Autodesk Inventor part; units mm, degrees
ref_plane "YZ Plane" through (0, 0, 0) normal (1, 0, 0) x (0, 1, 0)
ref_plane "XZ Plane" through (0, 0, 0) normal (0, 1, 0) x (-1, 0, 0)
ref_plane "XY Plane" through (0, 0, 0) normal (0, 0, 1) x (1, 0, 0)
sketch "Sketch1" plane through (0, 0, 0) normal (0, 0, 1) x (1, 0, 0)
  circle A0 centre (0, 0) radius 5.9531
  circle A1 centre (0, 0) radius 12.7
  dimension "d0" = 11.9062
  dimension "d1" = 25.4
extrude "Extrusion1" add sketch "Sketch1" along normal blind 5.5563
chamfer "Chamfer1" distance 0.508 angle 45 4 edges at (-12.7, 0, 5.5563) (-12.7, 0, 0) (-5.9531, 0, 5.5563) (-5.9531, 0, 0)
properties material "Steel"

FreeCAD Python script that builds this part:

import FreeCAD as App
import Part
import Sketcher

V = App.Vector
Q = App.Units.Quantity


def edges_at(feature, points):
    """Names of the edges that pass closest to the given points."""
    edges = feature.Shape.Edges
    near = lambda p: min(range(len(edges)), key=lambda i: edges[i].distToShape(Part.Vertex(*p))[0])
    return sorted({f"Edge{near(p) + 1}" for p in points})

doc = App.newDocument("Part")
body = doc.addObject("PartDesign::Body", "Body")

# Sketch on XY plane
sketch1 = body.newObject("Sketcher::SketchObject", "Sketch")
sketch1.AttachmentSupport = (doc.getObject("XY_Plane"), [""])
sketch1.MapMode = "FlatFace"
sketch1.addGeometry(Part.Circle(V(0, 0, 0), V(0, 0, 1), 13), False)
sketch1.addGeometry(Part.Circle(V(0, 0, 0), V(0, 0, 1), 6), False)
sketch1.addConstraint(Sketcher.Constraint("Coincident", 0, 3, -1, 1))
sketch1.addConstraint(Sketcher.Constraint("Coincident", 1, 3, -1, 1))
sketch1.addConstraint(Sketcher.Constraint("Diameter", 0, Q("1 in")))
sketch1.addConstraint(Sketcher.Constraint("Diameter", 1, Q("0.468748 in")))
pad1 = body.newObject("PartDesign::Pad", "Pad")
pad1.Profile = sketch1
pad1.Length = Q("0.218752 in")
doc.recompute()

chamfer = body.newObject("PartDesign::Chamfer", "Chamfer")
chamfer.Base = (pad1, edges_at(pad1, [
    (-12.7, 0, 5.556),
    (-12.7, 0, 0),
    (-5.953, 0, 5.556),
    (-5.953, 0, 0),
]))
chamfer.Size = Q("0.02 in")

doc.recompute()
